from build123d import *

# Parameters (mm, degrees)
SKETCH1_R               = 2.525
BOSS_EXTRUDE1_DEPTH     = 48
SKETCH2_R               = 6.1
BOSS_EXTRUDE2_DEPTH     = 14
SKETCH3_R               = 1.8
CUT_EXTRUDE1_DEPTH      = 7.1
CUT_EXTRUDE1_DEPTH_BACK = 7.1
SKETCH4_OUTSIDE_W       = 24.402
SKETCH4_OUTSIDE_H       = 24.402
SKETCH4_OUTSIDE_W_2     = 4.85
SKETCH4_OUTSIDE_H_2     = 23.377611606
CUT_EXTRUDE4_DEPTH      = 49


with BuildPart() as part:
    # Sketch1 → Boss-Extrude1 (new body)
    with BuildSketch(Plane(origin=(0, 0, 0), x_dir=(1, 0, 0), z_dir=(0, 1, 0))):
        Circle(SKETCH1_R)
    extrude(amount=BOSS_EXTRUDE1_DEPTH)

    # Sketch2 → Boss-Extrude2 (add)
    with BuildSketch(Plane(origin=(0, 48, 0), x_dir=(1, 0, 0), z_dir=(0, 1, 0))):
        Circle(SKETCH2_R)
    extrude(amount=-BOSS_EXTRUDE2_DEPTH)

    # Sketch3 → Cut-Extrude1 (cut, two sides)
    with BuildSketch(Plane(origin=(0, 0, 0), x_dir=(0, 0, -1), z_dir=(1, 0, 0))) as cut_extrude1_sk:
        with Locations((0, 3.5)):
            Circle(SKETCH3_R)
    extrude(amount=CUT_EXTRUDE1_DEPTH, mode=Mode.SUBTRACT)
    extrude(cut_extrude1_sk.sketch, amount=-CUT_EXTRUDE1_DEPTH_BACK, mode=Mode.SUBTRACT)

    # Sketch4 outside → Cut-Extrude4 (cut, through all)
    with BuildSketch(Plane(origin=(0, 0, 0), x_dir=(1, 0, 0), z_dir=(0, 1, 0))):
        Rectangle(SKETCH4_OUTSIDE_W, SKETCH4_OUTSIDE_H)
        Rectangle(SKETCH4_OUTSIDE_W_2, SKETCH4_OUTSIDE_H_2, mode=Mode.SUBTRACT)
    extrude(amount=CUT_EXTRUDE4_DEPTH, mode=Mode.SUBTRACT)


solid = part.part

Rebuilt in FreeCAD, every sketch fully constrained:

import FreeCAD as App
import Part
import Sketcher

V = App.Vector

doc = App.newDocument("Part")
body = doc.addObject("PartDesign::Body", "Body")

sketch1 = body.newObject("Sketcher::SketchObject", "Sketch")
sketch1.AttachmentSupport = (doc.getObject("XZ_Plane"), [""])
sketch1.MapMode = "FlatFace"
sketch1.addGeometry(Part.Circle(V(0, 0, 0), V(0, 0, 1), 2.525), False)
sketch1.addConstraint(Sketcher.Constraint("Coincident", 0, 3, -1, 1))
sketch1.addConstraint(Sketcher.Constraint("Diameter", 0, 5.05))
pad1 = body.newObject("PartDesign::Pad", "Pad")
pad1.Profile = sketch1
pad1.Length = 48
pad1.Reversed = True

sketch2 = body.newObject("Sketcher::SketchObject", "Sketch001")
sketch2.AttachmentSupport = (doc.getObject("XZ_Plane"), [""])
sketch2.MapMode = "FlatFace"
sketch2.AttachmentOffset = App.Placement(V(0, 0, -48), App.Rotation())
sketch2.addGeometry(Part.Circle(V(0, 0, 0), V(0, 0, 1), 6.1), False)
sketch2.addConstraint(Sketcher.Constraint("Coincident", 0, 3, -1, 1))
sketch2.addConstraint(Sketcher.Constraint("Diameter", 0, 12.2))
pad2 = body.newObject("PartDesign::Pad", "Pad001")
pad2.Profile = sketch2
pad2.Length = 14

sketch3 = body.newObject("Sketcher::SketchObject", "Sketch002")
sketch3.AttachmentSupport = (doc.getObject("YZ_Plane"), [""])
sketch3.MapMode = "FlatFace"
sketch3.addGeometry(Part.Circle(V(3.5, 0, 0), V(0, 0, 1), 1.8), False)
sketch3.addConstraint(Sketcher.Constraint("PointOnObject", 0, 3, -1))
sketch3.addConstraint(Sketcher.Constraint("Diameter", 0, 3.6))
sketch3.addConstraint(Sketcher.Constraint("DistanceX", -1, 1, 0, 3, 3.5))
pocket1 = body.newObject("PartDesign::Pocket", "Pocket")
pocket1.Profile = sketch3
pocket1.Type = "ThroughAll"
pocket1.Midplane = True

sketch4 = body.newObject("Sketcher::SketchObject", "Sketch003")
sketch4.AttachmentSupport = (doc.getObject("XZ_Plane"), [""])
sketch4.MapMode = "FlatFace"
sketch4.addGeometry(Part.LineSegment(V(-12.201, -12.201, 0), V(-12.201, 12.201, 0)), False)
sketch4.addGeometry(Part.LineSegment(V(-12.201, 12.201, 0), V(12.201, 12.201, 0)), False)
sketch4.addGeometry(Part.LineSegment(V(12.201, 12.201, 0), V(12.201, -12.201, 0)), False)
sketch4.addGeometry(Part.LineSegment(V(12.201, -12.201, 0), V(-12.201, -12.201, 0)), False)
sketch4.addGeometry(Part.LineSegment(V(2.425, 11.688806, 0), V(-2.425, 11.688806, 0)), False)
sketch4.addGeometry(Part.LineSegment(V(-2.425, 11.688806, 0), V(-2.425, -11.688806, 0)), False)
sketch4.addGeometry(Part.LineSegment(V(-2.425, -11.688806, 0), V(2.425, -11.688806, 0)), False)
sketch4.addGeometry(Part.LineSegment(V(2.425, -11.688806, 0), V(2.425, 11.688806, 0)), False)
sketch4.addConstraint(Sketcher.Constraint("Coincident", 0, 2, 1, 1))
sketch4.addConstraint(Sketcher.Constraint("Coincident", 1, 2, 2, 1))
sketch4.addConstraint(Sketcher.Constraint("Coincident", 2, 2, 3, 1))
sketch4.addConstraint(Sketcher.Constraint("Coincident", 3, 2, 0, 1))
sketch4.addConstraint(Sketcher.Constraint("Coincident", 4, 2, 5, 1))
sketch4.addConstraint(Sketcher.Constraint("Coincident", 5, 2, 6, 1))
sketch4.addConstraint(Sketcher.Constraint("Coincident", 6, 2, 7, 1))
sketch4.addConstraint(Sketcher.Constraint("Coincident", 7, 2, 4, 1))
sketch4.addConstraint(Sketcher.Constraint("Vertical", 0))
sketch4.addConstraint(Sketcher.Constraint("Horizontal", 1))
sketch4.addConstraint(Sketcher.Constraint("Vertical", 2))
sketch4.addConstraint(Sketcher.Constraint("Horizontal", 3))
sketch4.addConstraint(Sketcher.Constraint("Horizontal", 4))
sketch4.addConstraint(Sketcher.Constraint("Vertical", 5))
sketch4.addConstraint(Sketcher.Constraint("Horizontal", 6))
sketch4.addConstraint(Sketcher.Constraint("Vertical", 7))
sketch4.addConstraint(Sketcher.Constraint("Symmetric", 0, 2, 2, 2, -1, 1))
sketch4.addConstraint(Sketcher.Constraint("Symmetric", 4, 2, 6, 2, -1, 1))
sketch4.addConstraint(Sketcher.Constraint("Equal", 3, 0))
sketch4.addConstraint(Sketcher.Constraint("DistanceX", 4, 2, 4, 1, 4.85))
sketch4.addConstraint(Sketcher.Constraint("DistanceX", 1, 1, 1, 2, 24.402))
sketch4.addConstraint(Sketcher.Constraint("DistanceY", 5, 2, 5, 1, 23.377612))
pocket2 = body.newObject("PartDesign::Pocket", "Pocket001")
pocket2.Profile = sketch4
pocket2.Type = "ThroughAll"

doc.recompute()
